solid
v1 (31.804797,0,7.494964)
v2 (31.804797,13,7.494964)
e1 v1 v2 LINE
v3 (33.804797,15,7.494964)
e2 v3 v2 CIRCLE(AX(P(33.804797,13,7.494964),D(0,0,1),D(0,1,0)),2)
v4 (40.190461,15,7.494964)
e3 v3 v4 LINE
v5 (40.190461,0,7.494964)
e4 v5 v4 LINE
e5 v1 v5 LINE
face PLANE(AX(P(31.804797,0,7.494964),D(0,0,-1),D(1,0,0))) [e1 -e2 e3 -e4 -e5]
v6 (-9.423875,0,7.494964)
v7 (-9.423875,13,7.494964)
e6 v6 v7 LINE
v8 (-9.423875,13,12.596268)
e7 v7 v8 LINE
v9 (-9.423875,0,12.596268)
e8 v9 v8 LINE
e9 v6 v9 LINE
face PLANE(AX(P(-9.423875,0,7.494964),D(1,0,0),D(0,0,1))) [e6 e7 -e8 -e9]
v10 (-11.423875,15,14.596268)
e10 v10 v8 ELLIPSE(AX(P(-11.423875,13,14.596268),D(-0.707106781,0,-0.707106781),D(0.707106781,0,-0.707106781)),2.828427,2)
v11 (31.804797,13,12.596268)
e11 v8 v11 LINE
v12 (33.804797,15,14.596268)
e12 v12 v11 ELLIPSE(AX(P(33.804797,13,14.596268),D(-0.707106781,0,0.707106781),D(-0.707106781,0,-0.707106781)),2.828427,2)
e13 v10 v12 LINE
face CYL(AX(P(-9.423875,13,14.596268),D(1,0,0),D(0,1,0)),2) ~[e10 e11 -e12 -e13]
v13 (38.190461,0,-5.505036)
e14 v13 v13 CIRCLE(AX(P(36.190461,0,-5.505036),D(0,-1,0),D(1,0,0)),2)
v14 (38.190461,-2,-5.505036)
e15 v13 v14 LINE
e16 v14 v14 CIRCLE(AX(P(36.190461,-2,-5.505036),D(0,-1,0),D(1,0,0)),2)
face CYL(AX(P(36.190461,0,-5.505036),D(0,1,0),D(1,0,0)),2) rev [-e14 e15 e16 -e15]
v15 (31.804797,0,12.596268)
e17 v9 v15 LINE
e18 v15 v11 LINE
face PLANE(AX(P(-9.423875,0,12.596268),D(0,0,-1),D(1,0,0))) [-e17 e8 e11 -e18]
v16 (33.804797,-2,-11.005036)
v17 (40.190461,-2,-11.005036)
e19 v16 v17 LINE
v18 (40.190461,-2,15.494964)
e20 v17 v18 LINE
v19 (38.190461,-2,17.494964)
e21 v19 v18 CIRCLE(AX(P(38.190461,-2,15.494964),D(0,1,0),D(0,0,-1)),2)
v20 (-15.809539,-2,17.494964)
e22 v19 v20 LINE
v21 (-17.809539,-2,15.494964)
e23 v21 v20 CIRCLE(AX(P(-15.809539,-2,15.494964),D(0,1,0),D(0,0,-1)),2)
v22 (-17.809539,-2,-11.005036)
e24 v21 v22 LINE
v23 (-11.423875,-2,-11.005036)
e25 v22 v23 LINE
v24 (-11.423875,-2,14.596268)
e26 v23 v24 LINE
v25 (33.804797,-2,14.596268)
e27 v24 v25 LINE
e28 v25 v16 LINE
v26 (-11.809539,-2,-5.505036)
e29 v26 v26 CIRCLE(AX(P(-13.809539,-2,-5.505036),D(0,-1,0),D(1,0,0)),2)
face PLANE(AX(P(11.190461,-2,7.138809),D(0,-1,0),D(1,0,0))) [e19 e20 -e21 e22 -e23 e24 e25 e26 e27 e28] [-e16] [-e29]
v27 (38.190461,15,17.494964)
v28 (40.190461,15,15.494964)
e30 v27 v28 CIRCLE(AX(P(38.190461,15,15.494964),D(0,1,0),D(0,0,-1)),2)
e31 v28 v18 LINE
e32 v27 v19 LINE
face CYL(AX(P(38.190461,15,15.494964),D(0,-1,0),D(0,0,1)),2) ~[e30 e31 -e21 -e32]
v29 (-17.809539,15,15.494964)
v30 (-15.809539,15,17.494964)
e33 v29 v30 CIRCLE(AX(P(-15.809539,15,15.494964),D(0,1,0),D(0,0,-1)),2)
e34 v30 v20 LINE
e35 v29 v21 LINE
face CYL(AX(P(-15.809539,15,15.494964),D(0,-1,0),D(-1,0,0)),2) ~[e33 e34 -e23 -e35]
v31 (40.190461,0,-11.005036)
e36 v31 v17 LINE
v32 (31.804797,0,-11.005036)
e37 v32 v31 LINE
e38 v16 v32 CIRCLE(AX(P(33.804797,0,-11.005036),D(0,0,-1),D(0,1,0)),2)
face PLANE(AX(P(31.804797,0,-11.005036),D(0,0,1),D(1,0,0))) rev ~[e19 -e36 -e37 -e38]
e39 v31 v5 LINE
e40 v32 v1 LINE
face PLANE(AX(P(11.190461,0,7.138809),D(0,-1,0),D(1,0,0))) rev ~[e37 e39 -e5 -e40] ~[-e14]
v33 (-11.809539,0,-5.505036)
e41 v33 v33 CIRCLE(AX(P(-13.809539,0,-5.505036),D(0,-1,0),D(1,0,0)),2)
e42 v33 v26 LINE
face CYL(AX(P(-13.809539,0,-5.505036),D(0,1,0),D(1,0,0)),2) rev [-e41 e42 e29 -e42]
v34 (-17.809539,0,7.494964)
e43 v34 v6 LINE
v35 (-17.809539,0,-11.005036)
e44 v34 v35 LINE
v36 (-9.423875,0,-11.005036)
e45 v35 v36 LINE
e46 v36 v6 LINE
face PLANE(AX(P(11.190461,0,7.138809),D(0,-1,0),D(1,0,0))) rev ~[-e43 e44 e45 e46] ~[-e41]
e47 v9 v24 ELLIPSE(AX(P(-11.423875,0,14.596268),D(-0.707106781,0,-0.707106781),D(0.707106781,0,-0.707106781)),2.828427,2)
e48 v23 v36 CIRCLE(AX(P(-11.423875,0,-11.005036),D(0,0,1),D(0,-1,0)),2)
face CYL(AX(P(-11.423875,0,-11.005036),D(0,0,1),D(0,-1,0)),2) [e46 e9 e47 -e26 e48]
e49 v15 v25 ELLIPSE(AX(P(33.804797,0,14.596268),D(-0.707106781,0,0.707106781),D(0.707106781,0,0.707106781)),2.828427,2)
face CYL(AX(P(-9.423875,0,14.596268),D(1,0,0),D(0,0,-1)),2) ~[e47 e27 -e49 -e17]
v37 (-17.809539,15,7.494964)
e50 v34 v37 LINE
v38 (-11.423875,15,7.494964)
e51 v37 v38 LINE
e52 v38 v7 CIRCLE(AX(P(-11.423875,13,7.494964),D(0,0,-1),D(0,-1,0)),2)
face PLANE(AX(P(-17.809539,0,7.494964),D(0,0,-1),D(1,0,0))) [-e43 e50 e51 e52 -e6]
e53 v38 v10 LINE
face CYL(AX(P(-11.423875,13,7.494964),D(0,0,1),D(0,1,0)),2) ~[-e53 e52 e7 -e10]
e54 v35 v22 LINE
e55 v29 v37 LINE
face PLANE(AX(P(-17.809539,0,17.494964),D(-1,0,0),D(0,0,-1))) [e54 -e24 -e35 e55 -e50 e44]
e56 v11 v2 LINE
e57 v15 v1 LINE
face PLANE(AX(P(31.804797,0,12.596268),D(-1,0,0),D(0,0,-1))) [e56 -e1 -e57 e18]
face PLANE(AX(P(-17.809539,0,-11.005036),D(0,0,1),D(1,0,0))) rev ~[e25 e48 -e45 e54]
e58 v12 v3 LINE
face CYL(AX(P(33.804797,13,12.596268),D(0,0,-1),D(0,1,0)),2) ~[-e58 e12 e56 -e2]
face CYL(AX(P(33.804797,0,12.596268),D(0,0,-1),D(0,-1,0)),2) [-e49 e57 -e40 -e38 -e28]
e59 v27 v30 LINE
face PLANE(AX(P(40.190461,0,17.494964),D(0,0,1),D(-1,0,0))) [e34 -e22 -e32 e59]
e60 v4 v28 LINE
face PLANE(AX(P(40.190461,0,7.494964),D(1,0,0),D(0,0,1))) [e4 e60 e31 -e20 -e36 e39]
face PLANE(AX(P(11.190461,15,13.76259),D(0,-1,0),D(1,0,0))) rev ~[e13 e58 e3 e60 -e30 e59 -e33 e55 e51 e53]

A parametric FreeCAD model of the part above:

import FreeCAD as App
import Part
import Sketcher
Q = App.Units.Quantity


def edges_at(feature, points):
    """Names of the edges that pass closest to the given points."""
    edges = feature.Shape.Edges
    near = lambda p: min(range(len(edges)), key=lambda i: edges[i].distToShape(Part.Vertex(*p))[0])
    return sorted({f"Edge{near(p) + 1}" for p in points})


def add_polygon(sketch, points):
    """Adds a closed chain of lines whose ends are joined by coincident constraints."""
    first, n = sketch.GeometryCount, len(points)
    for a, b in zip(points, points[1:] + points[:1]):
        sketch.addGeometry(Part.LineSegment(App.Vector(*a, 0), App.Vector(*b, 0)), False)
    for i in range(n):
        sketch.addConstraint(Sketcher.Constraint("Coincident", first + i, 2, first + (i + 1) % n, 1))

doc = App.newDocument("Part")
body = doc.addObject("PartDesign::Body", "Body")

# Sketch on XZ plane
sketch1 = body.newObject("Sketcher::SketchObject", "Sketch")
sketch1.AttachmentSupport = (doc.getObject("XZ_Plane"), [""])
sketch1.MapMode = "FlatFace"
add_polygon(sketch1, [(40.190461, 17.494964), (-17.809539, 17.494964), (-17.809539, -11.005036), (-9.423875, -11.005036), (-9.423875, 12.596268), (31.804797, 12.596268), (31.804797, -11.005036), (40.190461, -11.005036)])  # lines 0-7
sketch1.addGeometry(Part.Circle(App.Vector(-13.809539, -5.505036, 0), App.Vector(0, 0, 1), 2), False)  # 8
sketch1.addGeometry(Part.Circle(App.Vector(36.190461, -5.505036, 0), App.Vector(0, 0, 1), 2), False)  # 9
sketch1.addConstraint([
    Sketcher.Constraint("Horizontal", 0),
    Sketcher.Constraint("Vertical", 1),
    Sketcher.Constraint("Horizontal", 2),
    Sketcher.Constraint("Vertical", 3),
    Sketcher.Constraint("Horizontal", 4),
    Sketcher.Constraint("Vertical", 5),
    Sketcher.Constraint("Horizontal", 6),
    Sketcher.Constraint("Vertical", 7),
    Sketcher.Constraint("Equal", 8, 9),
    Sketcher.Constraint("Horizontal", 8, 3, 9, 3),
    Sketcher.Constraint("Horizontal", 2, 2, 5, 2),
    Sketcher.Constraint("Equal", 2, 6),
    Sketcher.Constraint("Diameter", 8, Q("4 mm")),
    Sketcher.Constraint("DistanceX", 0, 2, 0, 1, Q("58 mm")),
    Sketcher.Constraint("DistanceY", 1, 2, 1, 1, Q("28.5 mm")),
    Sketcher.Constraint("DistanceX", 8, 3, 9, 3, Q("50 mm")),
    Sketcher.Constraint("DistanceX", 0, 2, 8, 3, Q("4 mm")),
    Sketcher.Constraint("DistanceY", 8, 3, 0, 2, Q("23 mm")),
    Sketcher.Constraint("DistanceX", 2, 1, 2, 2, Q("8.385664 mm")),
    Sketcher.Constraint("DistanceY", 3, 1, 3, 2, Q("23.601304 mm")),
    Sketcher.Constraint("DistanceX", 8, 3, -1, 1, Q("13.809539 mm")),
    Sketcher.Constraint("DistanceY", 8, 3, -1, 1, Q("5.505036 mm")),
])
pad1 = body.newObject("PartDesign::Pad", "Pad")
pad1.Profile = sketch1
pad1.Length = 2

# Sketch on XZ plane
sketch2 = body.newObject("Sketcher::SketchObject", "Sketch001")
sketch2.AttachmentSupport = (doc.getObject("XZ_Plane"), [""])
sketch2.MapMode = "FlatFace"
add_polygon(sketch2, [(31.804797, 7.494964), (40.190461, 7.494964), (40.190461, 17.494964), (-17.809539, 17.494964), (-17.809539, 7.494964), (-9.423875, 7.494964), (-9.423875, 12.596268), (31.804797, 12.596268)])  # lines 0-7
sketch2.addConstraint([
    Sketcher.Constraint("Horizontal", 0),
    Sketcher.Constraint("Vertical", 1),
    Sketcher.Constraint("Horizontal", 2),
    Sketcher.Constraint("Vertical", 3),
    Sketcher.Constraint("Horizontal", 4),
    Sketcher.Constraint("Vertical", 5),
    Sketcher.Constraint("Horizontal", 6),
    Sketcher.Constraint("Vertical", 7),
    Sketcher.Constraint("Horizontal", 0, 2, 3, 2),
    Sketcher.Constraint("Equal", 0, 4),
    Sketcher.Constraint("DistanceX", 2, 2, 2, 1, Q("58 mm")),
    Sketcher.Constraint("DistanceY", 1, 1, 1, 2, Q("10 mm")),
    Sketcher.Constraint("DistanceX", 0, 1, 0, 2, Q("8.385664 mm")),
    Sketcher.Constraint("DistanceY", 5, 1, 5, 2, Q("5.101304 mm")),
    Sketcher.Constraint("DistanceX", -1, 1, 0, 2, Q("40.190461 mm")),
    Sketcher.Constraint("DistanceY", -1, 1, 0, 2, Q("7.494964 mm")),
])
pad2 = body.newObject("PartDesign::Pad", "Pad001")
pad2.Profile = sketch2
pad2.Length = 15
pad2.Reversed = True
doc.recompute()

fillet = body.newObject("PartDesign::Fillet", "Fillet")
fillet.Base = (pad2, edges_at(pad2, [
    (-17.81, 6.5, 17.495),
    (40.19, 6.5, 17.495),
    (11.19, -2, 12.596),
    (31.805, -2, 0.796),
    (-9.424, -2, 0.796),
    (31.805, 15, 10.046),
    (11.19, 15, 12.596),
    (-9.424, 15, 10.046),
]))
fillet.Radius = 2

doc.recompute()
